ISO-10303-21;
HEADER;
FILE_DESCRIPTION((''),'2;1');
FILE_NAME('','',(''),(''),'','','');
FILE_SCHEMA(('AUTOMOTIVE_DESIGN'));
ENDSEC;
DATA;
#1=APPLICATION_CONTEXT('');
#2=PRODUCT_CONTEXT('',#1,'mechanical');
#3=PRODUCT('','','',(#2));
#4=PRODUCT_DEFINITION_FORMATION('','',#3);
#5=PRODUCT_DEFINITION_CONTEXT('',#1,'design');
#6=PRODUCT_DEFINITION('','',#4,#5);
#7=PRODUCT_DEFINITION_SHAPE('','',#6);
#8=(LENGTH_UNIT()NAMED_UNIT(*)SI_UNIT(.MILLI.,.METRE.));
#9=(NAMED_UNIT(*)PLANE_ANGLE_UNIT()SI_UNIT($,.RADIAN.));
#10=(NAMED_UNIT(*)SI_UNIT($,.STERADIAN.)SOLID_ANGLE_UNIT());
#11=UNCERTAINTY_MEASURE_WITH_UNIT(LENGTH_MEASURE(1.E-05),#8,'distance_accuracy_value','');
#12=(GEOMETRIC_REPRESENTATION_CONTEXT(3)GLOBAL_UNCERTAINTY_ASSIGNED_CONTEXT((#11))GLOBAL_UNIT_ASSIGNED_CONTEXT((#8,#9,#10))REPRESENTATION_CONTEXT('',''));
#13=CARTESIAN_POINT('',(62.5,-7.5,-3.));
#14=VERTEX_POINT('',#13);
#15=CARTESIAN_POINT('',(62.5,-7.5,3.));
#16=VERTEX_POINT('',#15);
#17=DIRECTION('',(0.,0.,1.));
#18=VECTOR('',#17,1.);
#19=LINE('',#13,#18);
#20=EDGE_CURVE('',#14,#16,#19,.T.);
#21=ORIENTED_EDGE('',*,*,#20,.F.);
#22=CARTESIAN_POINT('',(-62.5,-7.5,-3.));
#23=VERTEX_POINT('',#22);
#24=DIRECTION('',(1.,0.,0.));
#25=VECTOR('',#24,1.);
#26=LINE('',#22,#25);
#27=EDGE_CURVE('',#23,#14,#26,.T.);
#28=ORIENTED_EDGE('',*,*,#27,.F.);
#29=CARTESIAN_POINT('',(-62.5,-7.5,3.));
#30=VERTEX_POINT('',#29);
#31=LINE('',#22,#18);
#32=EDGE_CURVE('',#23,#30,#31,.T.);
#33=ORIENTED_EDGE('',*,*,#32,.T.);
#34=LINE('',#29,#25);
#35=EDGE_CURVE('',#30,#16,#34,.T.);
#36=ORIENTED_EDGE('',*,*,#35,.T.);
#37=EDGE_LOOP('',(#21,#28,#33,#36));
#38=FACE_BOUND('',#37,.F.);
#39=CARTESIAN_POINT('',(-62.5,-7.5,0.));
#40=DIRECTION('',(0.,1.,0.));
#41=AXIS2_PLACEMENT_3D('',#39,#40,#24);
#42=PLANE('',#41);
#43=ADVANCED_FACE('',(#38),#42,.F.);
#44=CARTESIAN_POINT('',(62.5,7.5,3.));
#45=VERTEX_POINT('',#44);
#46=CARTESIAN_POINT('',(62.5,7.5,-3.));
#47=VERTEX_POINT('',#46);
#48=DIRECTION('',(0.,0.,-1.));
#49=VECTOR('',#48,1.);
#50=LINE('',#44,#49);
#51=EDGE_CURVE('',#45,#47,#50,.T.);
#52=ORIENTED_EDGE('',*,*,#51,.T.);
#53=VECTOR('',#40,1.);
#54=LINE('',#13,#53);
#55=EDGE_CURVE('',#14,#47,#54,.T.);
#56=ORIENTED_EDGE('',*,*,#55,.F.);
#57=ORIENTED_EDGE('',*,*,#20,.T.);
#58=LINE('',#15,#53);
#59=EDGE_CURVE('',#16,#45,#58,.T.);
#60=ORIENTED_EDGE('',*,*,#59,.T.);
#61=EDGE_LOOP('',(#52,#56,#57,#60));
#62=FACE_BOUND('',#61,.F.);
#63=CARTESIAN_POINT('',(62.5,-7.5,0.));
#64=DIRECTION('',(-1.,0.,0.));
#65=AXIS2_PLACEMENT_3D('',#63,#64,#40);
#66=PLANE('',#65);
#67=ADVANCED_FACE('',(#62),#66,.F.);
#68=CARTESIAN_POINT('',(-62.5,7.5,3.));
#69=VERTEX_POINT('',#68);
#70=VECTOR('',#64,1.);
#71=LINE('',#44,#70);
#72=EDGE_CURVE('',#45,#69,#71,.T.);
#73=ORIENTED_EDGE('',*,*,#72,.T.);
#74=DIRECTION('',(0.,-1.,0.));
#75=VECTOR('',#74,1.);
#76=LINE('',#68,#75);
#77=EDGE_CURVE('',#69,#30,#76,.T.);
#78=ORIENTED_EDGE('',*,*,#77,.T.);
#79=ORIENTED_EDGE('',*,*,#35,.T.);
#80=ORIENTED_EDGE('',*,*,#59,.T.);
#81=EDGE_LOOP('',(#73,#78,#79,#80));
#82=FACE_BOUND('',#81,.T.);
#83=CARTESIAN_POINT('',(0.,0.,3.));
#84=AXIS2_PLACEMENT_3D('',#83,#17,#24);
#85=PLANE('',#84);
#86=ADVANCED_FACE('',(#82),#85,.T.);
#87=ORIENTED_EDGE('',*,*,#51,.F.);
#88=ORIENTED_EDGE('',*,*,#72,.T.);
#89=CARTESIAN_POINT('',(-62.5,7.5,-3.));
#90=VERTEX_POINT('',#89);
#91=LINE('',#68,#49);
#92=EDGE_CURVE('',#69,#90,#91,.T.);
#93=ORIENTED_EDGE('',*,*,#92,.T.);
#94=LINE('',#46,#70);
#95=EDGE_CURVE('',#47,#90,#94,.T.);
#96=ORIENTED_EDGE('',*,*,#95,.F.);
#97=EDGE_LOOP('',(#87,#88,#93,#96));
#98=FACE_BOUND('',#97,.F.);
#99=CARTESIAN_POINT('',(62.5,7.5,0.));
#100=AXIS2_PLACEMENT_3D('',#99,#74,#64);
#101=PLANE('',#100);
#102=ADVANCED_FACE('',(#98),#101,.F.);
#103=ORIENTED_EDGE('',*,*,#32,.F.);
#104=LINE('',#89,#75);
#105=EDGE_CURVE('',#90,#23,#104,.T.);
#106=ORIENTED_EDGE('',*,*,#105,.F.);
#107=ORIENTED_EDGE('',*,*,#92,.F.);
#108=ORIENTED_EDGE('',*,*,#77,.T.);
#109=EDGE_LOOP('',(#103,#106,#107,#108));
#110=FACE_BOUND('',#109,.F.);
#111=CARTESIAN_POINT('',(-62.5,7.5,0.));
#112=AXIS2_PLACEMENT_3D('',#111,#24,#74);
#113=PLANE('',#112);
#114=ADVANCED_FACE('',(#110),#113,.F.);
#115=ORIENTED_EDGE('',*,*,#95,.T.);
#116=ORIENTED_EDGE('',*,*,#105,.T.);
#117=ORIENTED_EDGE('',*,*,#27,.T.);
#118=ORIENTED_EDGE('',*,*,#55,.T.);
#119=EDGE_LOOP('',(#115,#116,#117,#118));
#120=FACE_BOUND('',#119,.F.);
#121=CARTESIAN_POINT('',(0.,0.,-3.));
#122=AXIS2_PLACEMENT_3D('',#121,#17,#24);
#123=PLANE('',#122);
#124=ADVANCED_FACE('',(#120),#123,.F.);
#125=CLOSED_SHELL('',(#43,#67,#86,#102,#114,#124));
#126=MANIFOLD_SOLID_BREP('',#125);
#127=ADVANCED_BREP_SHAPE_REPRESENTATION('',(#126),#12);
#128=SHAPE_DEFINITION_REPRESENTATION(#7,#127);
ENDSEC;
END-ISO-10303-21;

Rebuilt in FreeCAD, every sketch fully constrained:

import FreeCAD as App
import Part
import Sketcher
from FreeCAD import Vector
Q = App.Units.Quantity


def add_polygon(sketch, points):
    """Adds a closed chain of lines whose ends are joined by coincident constraints."""
    first, n = sketch.GeometryCount, len(points)
    for a, b in zip(points, points[1:] + points[:1]):
        sketch.addGeometry(Part.LineSegment(App.Vector(*a, 0), App.Vector(*b, 0)), False)
    for i in range(n):
        sketch.addConstraint(Sketcher.Constraint("Coincident", first + i, 2, first + (i + 1) % n, 1))

doc = App.newDocument("Part")
body = doc.addObject("PartDesign::Body", "Body")

sketch1 = body.newObject("Sketcher::SketchObject", "Sketch")
sketch1.AttachmentSupport = (doc.getObject("XY_Plane"), [""])
sketch1.MapMode = "FlatFace"
add_polygon(sketch1, [(-62.5, 7.5), (-62.5, -7.5), (62.5, -7.5), (62.5, 7.5)])
sketch1.addConstraint([
    Sketcher.Constraint("Vertical", 0),
    Sketcher.Constraint("Horizontal", 1),
    Sketcher.Constraint("Vertical", 2),
    Sketcher.Constraint("Horizontal", 3),
    Sketcher.Constraint("Symmetric", 0, 2, 2, 2, -1, 1),
    Sketcher.Constraint("DistanceX", 1, 1, 1, 2, Q("125 mm")),
    Sketcher.Constraint("DistanceY", 0, 2, 0, 1, Q("15 mm")),
])
pad1 = body.newObject("PartDesign::Pad", "Pad")
pad1.Profile = sketch1
pad1.Length = 6
pad1.Midplane = True

doc.recompute()
